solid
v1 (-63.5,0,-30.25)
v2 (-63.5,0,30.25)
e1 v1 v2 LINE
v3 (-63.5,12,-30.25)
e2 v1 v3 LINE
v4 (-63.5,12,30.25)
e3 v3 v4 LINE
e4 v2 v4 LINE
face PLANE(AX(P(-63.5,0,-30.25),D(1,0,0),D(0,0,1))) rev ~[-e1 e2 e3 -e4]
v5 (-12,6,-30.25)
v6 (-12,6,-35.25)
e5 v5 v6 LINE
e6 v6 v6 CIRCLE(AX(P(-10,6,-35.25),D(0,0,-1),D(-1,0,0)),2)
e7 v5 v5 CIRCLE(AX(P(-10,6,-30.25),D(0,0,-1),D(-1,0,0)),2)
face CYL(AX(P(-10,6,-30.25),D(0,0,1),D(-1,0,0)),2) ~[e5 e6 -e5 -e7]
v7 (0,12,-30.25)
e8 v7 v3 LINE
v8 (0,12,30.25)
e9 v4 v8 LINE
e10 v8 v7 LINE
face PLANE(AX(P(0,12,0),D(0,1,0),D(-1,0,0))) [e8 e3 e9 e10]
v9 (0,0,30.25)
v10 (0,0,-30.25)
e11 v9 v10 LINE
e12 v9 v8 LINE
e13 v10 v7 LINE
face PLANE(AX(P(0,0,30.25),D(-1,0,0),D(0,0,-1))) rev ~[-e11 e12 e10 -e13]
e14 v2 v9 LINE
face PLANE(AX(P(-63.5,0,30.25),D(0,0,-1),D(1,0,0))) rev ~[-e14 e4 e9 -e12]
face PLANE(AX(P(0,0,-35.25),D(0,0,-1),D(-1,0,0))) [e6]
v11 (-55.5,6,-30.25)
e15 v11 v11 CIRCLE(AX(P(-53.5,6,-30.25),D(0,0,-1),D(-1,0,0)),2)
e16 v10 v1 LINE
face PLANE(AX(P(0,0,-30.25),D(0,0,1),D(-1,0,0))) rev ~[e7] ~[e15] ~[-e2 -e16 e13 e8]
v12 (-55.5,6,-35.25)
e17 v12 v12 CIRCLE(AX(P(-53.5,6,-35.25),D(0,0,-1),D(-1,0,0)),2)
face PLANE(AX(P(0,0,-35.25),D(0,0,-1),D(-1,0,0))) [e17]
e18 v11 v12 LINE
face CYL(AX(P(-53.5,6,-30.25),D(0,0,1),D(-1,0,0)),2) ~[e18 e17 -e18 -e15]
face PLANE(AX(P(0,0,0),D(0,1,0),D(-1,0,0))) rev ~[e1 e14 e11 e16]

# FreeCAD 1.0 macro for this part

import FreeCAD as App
import Part
import Sketcher
from FreeCAD import Vector

doc = App.newDocument("Part")
body = doc.addObject("PartDesign::Body", "Body")

sketch1 = body.newObject("Sketcher::SketchObject", "Sketch")
sketch1.AttachmentSupport = (doc.getObject("XZ_Plane"), [""])
sketch1.MapMode = "FlatFace"
sketch1.addGeometry(Part.LineSegment(Vector(-64, -30, 0), Vector(-64, 30, 0)), False)
sketch1.addGeometry(Part.LineSegment(Vector(-64, 30, 0), Vector(0, 30, 0)), False)
sketch1.addGeometry(Part.LineSegment(Vector(0, 30, 0), Vector(0, -30, 0)), False)
sketch1.addGeometry(Part.LineSegment(Vector(0, -30, 0), Vector(-64, -30, 0)), False)
sketch1.addConstraint(Sketcher.Constraint("Coincident", 0, 2, 1, 1))
sketch1.addConstraint(Sketcher.Constraint("Coincident", 1, 2, 2, 1))
sketch1.addConstraint(Sketcher.Constraint("Coincident", 2, 2, 3, 1))
sketch1.addConstraint(Sketcher.Constraint("Coincident", 3, 2, 0, 1))
sketch1.addConstraint(Sketcher.Constraint("Vertical", 0))
sketch1.addConstraint(Sketcher.Constraint("Horizontal", 1))
sketch1.addConstraint(Sketcher.Constraint("Vertical", 2))
sketch1.addConstraint(Sketcher.Constraint("Horizontal", 3))
sketch1.addConstraint(Sketcher.Constraint("Symmetric", 1, 2, 2, 2, -1, 1))
sketch1.addConstraint(Sketcher.Constraint("DistanceX", 1, 1, 1, 2, 63.5))
sketch1.addConstraint(Sketcher.Constraint("DistanceY", 0, 1, 0, 2, 60.5))
pad1 = body.newObject("PartDesign::Pad", "Pad")
pad1.Profile = sketch1
pad1.Length = 12
pad1.Reversed = True

sketch2 = body.newObject("Sketcher::SketchObject", "Sketch001")
sketch2.AttachmentSupport = (doc.getObject("XY_Plane"), [""])
sketch2.MapMode = "FlatFace"
sketch2.AttachmentOffset = App.Placement(Vector(0, 0, -30.25), App.Rotation())
sketch2.addGeometry(Part.Circle(Vector(-10, 6, 0), Vector(0, 0, 1), 2), False)
sketch2.addGeometry(Part.Circle(Vector(-53.5, 6, 0), Vector(0, 0, 1), 2), False)
sketch2.addConstraint(Sketcher.Constraint("Equal", 0, 1))
sketch2.addConstraint(Sketcher.Constraint("Horizontal", 0, 3, 1, 3))
sketch2.addConstraint(Sketcher.Constraint("Diameter", 0, 4.0))
sketch2.addConstraint(Sketcher.Constraint("DistanceX", 0, 3, -1, 1, 10.0))
sketch2.addConstraint(Sketcher.Constraint("DistanceY", -1, 1, 0, 3, 6.0))
sketch2.addConstraint(Sketcher.Constraint("DistanceX", 1, 3, -1, 1, 53.5))
pad2 = body.newObject("PartDesign::Pad", "Pad001")
pad2.Profile = sketch2
pad2.Length = 5
pad2.Reversed = True

doc.recompute()
